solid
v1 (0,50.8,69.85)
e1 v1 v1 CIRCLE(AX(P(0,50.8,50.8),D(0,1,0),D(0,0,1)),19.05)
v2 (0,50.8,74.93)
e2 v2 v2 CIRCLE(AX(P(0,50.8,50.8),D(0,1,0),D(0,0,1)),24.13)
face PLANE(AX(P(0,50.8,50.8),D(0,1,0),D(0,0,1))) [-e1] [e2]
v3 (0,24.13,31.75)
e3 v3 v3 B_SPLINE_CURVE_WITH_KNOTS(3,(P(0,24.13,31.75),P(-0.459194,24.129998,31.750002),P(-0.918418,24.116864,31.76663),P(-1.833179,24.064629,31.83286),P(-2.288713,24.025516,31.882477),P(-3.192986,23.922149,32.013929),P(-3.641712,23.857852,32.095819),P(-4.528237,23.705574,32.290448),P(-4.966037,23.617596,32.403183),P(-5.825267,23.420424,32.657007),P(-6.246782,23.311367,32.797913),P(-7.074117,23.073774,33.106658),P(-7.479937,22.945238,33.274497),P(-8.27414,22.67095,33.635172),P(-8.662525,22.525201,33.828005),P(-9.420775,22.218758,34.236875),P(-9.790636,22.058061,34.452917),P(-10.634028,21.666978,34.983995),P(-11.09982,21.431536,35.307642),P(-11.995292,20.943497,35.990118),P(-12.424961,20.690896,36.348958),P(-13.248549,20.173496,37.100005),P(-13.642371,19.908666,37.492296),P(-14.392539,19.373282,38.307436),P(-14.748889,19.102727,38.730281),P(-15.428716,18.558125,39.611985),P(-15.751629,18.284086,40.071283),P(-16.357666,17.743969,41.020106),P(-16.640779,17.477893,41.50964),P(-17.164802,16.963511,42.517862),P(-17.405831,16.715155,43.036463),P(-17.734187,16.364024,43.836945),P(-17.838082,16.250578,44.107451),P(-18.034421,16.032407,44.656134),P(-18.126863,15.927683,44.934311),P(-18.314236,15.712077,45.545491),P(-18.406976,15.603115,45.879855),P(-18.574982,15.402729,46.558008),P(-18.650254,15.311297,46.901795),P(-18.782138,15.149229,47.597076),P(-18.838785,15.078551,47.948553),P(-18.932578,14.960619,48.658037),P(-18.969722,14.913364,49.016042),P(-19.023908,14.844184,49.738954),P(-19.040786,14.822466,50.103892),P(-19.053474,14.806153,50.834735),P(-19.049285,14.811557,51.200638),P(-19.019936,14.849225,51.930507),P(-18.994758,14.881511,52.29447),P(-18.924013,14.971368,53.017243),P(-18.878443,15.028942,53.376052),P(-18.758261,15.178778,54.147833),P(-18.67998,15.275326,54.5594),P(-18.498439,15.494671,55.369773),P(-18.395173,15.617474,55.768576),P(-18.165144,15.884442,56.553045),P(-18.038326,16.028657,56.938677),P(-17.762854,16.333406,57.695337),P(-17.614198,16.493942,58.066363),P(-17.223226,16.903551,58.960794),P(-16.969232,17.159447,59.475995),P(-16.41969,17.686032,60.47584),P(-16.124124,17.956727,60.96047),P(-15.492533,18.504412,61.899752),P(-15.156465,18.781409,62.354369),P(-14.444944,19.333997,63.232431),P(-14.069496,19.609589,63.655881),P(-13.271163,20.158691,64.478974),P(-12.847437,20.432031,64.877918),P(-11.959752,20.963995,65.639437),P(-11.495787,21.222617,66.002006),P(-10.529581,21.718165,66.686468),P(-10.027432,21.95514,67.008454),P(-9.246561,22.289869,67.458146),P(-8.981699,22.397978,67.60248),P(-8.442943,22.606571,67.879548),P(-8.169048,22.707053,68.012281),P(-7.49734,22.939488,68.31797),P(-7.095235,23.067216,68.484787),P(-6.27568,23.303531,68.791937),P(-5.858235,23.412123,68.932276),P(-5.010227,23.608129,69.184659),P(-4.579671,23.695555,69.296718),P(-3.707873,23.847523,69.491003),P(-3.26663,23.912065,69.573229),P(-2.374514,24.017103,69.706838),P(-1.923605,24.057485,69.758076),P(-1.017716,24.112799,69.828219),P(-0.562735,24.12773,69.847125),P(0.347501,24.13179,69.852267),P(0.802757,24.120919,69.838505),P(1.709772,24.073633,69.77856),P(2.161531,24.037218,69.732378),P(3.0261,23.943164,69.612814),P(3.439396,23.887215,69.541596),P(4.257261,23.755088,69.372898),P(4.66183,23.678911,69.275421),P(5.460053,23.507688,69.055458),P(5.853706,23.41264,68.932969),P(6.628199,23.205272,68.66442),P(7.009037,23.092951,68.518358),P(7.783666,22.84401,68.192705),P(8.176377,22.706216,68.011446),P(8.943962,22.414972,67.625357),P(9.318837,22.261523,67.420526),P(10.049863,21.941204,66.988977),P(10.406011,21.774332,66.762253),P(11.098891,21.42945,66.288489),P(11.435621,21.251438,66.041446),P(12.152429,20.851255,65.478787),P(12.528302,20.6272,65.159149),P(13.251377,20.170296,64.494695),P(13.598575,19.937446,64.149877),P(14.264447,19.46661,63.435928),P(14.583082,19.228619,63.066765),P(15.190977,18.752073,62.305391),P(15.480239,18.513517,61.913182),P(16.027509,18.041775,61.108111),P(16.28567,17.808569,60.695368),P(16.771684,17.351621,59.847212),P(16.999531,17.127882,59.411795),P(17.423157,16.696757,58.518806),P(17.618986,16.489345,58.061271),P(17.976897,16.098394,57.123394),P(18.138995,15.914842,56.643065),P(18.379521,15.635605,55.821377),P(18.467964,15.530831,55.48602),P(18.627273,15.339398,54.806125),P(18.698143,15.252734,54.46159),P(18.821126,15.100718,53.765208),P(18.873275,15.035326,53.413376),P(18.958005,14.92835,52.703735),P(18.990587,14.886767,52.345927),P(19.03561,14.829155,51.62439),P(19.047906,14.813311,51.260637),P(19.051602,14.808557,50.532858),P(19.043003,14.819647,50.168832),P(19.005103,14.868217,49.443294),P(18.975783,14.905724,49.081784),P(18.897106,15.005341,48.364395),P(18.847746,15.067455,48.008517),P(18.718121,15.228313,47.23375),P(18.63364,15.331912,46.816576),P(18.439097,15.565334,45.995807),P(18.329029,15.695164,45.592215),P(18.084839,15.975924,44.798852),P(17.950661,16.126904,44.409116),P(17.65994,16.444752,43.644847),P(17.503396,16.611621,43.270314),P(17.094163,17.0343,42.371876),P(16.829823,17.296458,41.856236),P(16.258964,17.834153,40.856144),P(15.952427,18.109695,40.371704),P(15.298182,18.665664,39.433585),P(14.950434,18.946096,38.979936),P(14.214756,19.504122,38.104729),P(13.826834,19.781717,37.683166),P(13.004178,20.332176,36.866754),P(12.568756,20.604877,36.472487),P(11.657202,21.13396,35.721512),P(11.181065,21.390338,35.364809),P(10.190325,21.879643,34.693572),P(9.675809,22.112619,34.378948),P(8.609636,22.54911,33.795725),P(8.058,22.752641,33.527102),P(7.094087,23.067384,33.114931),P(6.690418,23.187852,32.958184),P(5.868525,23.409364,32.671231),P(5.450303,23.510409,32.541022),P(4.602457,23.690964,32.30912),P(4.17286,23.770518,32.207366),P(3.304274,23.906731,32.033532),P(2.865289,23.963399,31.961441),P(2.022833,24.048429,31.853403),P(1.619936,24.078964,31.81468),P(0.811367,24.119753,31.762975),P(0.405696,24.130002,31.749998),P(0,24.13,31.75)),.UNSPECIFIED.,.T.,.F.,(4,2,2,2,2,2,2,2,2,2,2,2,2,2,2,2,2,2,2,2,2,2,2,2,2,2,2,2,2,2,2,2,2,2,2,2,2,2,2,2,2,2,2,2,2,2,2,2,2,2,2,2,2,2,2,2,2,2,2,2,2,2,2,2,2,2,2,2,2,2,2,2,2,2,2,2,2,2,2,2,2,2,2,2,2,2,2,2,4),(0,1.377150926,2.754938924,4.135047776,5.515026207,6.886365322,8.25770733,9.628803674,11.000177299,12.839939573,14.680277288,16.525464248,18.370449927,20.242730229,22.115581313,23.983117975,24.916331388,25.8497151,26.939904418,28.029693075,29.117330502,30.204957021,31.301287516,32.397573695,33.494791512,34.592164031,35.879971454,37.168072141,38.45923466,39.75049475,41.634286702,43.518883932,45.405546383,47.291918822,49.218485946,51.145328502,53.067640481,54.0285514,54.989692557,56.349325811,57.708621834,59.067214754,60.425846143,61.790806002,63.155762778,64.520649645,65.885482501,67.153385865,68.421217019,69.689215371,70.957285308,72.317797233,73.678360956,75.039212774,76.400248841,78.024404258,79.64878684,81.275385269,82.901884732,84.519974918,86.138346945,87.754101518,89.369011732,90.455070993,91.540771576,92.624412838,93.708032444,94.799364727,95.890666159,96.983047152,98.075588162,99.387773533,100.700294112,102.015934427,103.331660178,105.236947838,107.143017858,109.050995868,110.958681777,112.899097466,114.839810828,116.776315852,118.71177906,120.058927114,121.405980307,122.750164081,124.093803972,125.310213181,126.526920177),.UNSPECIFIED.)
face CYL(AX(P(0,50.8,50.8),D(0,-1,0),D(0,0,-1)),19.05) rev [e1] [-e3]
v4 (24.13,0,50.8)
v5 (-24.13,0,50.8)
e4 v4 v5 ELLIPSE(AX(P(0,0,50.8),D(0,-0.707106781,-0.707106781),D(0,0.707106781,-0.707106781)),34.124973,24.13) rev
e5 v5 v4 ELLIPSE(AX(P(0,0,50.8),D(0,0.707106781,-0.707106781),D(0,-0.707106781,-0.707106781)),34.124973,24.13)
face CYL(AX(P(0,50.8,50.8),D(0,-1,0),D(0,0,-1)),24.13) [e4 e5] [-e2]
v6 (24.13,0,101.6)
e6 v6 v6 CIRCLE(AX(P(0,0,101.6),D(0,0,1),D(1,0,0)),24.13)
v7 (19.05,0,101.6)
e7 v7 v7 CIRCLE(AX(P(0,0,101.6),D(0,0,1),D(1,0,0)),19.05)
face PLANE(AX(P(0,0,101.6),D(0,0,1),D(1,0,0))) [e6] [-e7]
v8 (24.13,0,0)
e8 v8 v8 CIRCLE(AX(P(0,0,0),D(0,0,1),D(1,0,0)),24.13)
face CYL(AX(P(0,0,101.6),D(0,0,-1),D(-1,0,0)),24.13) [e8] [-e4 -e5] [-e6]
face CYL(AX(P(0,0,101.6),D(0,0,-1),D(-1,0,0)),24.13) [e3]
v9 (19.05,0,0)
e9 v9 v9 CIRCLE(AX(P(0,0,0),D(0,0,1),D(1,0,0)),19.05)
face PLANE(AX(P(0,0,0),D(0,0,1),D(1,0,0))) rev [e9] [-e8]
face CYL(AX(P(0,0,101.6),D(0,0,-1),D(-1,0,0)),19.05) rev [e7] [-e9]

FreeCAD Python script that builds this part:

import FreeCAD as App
import Part
import Sketcher

V = App.Vector
Q = App.Units.Quantity

doc = App.newDocument("Part")
params = doc.addObject("Spreadsheet::Sheet", "Params")
for row, (alias, value) in enumerate([
    ("sketch1_diameter", "1.9 in"),
    ("sketch1_diameter2", "1.5 in"),
    ("pad1_length", "4 in"),
    ("sketch2_diameter", "1.9 in"),
    ("sketch2_diameter2", "1.5 in"),
    ("pad2_length", "2 in"),
    ("sketch3_diameter", "1.5 in"),
], start=1):
    params.set(f"A{row}", alias)
    params.set(f"B{row}", "=" + value)
    params.setAlias(f"B{row}", alias)

body = doc.addObject("PartDesign::Body", "Body")

sketch1 = body.newObject("Sketcher::SketchObject", "Sketch")
sketch1.AttachmentSupport = (doc.getObject("XY_Plane"), [""])
sketch1.MapMode = "FlatFace"
sketch1.addGeometry([
    Part.Circle(V(0, 0, 0), V(0, 0, 1), 24),
    Part.Circle(V(0, 0, 0), V(0, 0, 1), 19),
], False)
sketch1.addConstraint([
    Sketcher.Constraint("Coincident", 0, 3, -1, 1),
    Sketcher.Constraint("Coincident", 1, 3, -1, 1),
    Sketcher.Constraint("Diameter", 0, Q("1.9 in")),
    Sketcher.Constraint("Diameter", 1, Q("1.5 in")),
])
sketch1.setExpression("Constraints[2]", "Params.sketch1_diameter")
sketch1.setExpression("Constraints[3]", "Params.sketch1_diameter2")
pad1 = body.newObject("PartDesign::Pad", "Pad")
pad1.Profile = sketch1
pad1.setExpression("Length", "Params.pad1_length")

sketch2 = body.newObject("Sketcher::SketchObject", "Sketch001")
sketch2.AttachmentSupport = (doc.getObject("XZ_Plane"), [""])
sketch2.MapMode = "FlatFace"
sketch2.addGeometry([
    Part.Circle(V(0, 51, 0), V(0, 0, 1), 24),
    Part.Circle(V(0, 51, 0), V(0, 0, 1), 19),
], False)
sketch2.addConstraint([
    Sketcher.Constraint("Coincident", 1, 3, 0, 3),
    Sketcher.Constraint("PointOnObject", 0, 3, -2),
    Sketcher.Constraint("Diameter", 0, Q("1.9 in")),
    Sketcher.Constraint("Diameter", 1, Q("1.5 in")),
    Sketcher.Constraint("DistanceY", -1, 1, 0, 3, Q("2 in")),
])
sketch2.setExpression("Constraints[2]", "Params.sketch2_diameter")
sketch2.setExpression("Constraints[3]", "Params.sketch2_diameter2")
pad2 = body.newObject("PartDesign::Pad", "Pad001")
pad2.Profile = sketch2
pad2.setExpression("Length", "Params.pad2_length")
pad2.Reversed = True

sketch3 = body.newObject("Sketcher::SketchObject", "Sketch002")
sketch3.AttachmentSupport = (doc.getObject("XY_Plane"), [""])
sketch3.MapMode = "FlatFace"
sketch3.AttachmentOffset = App.Placement(V(0, 0, 4 * 25.4), App.Rotation())
sketch3.addGeometry(Part.Circle(V(0, 0, 0), V(0, 0, 1), 19), False)
sketch3.addConstraint([
    Sketcher.Constraint("Coincident", 0, 3, -1, 1),
    Sketcher.Constraint("Diameter", 0, Q("1.5 in")),
])
sketch3.setExpression("Constraints[1]", "Params.sketch3_diameter")
pocket1 = body.newObject("PartDesign::Pocket", "Pocket")
pocket1.Profile = sketch3
pocket1.Type = "ThroughAll"

doc.recompute()
